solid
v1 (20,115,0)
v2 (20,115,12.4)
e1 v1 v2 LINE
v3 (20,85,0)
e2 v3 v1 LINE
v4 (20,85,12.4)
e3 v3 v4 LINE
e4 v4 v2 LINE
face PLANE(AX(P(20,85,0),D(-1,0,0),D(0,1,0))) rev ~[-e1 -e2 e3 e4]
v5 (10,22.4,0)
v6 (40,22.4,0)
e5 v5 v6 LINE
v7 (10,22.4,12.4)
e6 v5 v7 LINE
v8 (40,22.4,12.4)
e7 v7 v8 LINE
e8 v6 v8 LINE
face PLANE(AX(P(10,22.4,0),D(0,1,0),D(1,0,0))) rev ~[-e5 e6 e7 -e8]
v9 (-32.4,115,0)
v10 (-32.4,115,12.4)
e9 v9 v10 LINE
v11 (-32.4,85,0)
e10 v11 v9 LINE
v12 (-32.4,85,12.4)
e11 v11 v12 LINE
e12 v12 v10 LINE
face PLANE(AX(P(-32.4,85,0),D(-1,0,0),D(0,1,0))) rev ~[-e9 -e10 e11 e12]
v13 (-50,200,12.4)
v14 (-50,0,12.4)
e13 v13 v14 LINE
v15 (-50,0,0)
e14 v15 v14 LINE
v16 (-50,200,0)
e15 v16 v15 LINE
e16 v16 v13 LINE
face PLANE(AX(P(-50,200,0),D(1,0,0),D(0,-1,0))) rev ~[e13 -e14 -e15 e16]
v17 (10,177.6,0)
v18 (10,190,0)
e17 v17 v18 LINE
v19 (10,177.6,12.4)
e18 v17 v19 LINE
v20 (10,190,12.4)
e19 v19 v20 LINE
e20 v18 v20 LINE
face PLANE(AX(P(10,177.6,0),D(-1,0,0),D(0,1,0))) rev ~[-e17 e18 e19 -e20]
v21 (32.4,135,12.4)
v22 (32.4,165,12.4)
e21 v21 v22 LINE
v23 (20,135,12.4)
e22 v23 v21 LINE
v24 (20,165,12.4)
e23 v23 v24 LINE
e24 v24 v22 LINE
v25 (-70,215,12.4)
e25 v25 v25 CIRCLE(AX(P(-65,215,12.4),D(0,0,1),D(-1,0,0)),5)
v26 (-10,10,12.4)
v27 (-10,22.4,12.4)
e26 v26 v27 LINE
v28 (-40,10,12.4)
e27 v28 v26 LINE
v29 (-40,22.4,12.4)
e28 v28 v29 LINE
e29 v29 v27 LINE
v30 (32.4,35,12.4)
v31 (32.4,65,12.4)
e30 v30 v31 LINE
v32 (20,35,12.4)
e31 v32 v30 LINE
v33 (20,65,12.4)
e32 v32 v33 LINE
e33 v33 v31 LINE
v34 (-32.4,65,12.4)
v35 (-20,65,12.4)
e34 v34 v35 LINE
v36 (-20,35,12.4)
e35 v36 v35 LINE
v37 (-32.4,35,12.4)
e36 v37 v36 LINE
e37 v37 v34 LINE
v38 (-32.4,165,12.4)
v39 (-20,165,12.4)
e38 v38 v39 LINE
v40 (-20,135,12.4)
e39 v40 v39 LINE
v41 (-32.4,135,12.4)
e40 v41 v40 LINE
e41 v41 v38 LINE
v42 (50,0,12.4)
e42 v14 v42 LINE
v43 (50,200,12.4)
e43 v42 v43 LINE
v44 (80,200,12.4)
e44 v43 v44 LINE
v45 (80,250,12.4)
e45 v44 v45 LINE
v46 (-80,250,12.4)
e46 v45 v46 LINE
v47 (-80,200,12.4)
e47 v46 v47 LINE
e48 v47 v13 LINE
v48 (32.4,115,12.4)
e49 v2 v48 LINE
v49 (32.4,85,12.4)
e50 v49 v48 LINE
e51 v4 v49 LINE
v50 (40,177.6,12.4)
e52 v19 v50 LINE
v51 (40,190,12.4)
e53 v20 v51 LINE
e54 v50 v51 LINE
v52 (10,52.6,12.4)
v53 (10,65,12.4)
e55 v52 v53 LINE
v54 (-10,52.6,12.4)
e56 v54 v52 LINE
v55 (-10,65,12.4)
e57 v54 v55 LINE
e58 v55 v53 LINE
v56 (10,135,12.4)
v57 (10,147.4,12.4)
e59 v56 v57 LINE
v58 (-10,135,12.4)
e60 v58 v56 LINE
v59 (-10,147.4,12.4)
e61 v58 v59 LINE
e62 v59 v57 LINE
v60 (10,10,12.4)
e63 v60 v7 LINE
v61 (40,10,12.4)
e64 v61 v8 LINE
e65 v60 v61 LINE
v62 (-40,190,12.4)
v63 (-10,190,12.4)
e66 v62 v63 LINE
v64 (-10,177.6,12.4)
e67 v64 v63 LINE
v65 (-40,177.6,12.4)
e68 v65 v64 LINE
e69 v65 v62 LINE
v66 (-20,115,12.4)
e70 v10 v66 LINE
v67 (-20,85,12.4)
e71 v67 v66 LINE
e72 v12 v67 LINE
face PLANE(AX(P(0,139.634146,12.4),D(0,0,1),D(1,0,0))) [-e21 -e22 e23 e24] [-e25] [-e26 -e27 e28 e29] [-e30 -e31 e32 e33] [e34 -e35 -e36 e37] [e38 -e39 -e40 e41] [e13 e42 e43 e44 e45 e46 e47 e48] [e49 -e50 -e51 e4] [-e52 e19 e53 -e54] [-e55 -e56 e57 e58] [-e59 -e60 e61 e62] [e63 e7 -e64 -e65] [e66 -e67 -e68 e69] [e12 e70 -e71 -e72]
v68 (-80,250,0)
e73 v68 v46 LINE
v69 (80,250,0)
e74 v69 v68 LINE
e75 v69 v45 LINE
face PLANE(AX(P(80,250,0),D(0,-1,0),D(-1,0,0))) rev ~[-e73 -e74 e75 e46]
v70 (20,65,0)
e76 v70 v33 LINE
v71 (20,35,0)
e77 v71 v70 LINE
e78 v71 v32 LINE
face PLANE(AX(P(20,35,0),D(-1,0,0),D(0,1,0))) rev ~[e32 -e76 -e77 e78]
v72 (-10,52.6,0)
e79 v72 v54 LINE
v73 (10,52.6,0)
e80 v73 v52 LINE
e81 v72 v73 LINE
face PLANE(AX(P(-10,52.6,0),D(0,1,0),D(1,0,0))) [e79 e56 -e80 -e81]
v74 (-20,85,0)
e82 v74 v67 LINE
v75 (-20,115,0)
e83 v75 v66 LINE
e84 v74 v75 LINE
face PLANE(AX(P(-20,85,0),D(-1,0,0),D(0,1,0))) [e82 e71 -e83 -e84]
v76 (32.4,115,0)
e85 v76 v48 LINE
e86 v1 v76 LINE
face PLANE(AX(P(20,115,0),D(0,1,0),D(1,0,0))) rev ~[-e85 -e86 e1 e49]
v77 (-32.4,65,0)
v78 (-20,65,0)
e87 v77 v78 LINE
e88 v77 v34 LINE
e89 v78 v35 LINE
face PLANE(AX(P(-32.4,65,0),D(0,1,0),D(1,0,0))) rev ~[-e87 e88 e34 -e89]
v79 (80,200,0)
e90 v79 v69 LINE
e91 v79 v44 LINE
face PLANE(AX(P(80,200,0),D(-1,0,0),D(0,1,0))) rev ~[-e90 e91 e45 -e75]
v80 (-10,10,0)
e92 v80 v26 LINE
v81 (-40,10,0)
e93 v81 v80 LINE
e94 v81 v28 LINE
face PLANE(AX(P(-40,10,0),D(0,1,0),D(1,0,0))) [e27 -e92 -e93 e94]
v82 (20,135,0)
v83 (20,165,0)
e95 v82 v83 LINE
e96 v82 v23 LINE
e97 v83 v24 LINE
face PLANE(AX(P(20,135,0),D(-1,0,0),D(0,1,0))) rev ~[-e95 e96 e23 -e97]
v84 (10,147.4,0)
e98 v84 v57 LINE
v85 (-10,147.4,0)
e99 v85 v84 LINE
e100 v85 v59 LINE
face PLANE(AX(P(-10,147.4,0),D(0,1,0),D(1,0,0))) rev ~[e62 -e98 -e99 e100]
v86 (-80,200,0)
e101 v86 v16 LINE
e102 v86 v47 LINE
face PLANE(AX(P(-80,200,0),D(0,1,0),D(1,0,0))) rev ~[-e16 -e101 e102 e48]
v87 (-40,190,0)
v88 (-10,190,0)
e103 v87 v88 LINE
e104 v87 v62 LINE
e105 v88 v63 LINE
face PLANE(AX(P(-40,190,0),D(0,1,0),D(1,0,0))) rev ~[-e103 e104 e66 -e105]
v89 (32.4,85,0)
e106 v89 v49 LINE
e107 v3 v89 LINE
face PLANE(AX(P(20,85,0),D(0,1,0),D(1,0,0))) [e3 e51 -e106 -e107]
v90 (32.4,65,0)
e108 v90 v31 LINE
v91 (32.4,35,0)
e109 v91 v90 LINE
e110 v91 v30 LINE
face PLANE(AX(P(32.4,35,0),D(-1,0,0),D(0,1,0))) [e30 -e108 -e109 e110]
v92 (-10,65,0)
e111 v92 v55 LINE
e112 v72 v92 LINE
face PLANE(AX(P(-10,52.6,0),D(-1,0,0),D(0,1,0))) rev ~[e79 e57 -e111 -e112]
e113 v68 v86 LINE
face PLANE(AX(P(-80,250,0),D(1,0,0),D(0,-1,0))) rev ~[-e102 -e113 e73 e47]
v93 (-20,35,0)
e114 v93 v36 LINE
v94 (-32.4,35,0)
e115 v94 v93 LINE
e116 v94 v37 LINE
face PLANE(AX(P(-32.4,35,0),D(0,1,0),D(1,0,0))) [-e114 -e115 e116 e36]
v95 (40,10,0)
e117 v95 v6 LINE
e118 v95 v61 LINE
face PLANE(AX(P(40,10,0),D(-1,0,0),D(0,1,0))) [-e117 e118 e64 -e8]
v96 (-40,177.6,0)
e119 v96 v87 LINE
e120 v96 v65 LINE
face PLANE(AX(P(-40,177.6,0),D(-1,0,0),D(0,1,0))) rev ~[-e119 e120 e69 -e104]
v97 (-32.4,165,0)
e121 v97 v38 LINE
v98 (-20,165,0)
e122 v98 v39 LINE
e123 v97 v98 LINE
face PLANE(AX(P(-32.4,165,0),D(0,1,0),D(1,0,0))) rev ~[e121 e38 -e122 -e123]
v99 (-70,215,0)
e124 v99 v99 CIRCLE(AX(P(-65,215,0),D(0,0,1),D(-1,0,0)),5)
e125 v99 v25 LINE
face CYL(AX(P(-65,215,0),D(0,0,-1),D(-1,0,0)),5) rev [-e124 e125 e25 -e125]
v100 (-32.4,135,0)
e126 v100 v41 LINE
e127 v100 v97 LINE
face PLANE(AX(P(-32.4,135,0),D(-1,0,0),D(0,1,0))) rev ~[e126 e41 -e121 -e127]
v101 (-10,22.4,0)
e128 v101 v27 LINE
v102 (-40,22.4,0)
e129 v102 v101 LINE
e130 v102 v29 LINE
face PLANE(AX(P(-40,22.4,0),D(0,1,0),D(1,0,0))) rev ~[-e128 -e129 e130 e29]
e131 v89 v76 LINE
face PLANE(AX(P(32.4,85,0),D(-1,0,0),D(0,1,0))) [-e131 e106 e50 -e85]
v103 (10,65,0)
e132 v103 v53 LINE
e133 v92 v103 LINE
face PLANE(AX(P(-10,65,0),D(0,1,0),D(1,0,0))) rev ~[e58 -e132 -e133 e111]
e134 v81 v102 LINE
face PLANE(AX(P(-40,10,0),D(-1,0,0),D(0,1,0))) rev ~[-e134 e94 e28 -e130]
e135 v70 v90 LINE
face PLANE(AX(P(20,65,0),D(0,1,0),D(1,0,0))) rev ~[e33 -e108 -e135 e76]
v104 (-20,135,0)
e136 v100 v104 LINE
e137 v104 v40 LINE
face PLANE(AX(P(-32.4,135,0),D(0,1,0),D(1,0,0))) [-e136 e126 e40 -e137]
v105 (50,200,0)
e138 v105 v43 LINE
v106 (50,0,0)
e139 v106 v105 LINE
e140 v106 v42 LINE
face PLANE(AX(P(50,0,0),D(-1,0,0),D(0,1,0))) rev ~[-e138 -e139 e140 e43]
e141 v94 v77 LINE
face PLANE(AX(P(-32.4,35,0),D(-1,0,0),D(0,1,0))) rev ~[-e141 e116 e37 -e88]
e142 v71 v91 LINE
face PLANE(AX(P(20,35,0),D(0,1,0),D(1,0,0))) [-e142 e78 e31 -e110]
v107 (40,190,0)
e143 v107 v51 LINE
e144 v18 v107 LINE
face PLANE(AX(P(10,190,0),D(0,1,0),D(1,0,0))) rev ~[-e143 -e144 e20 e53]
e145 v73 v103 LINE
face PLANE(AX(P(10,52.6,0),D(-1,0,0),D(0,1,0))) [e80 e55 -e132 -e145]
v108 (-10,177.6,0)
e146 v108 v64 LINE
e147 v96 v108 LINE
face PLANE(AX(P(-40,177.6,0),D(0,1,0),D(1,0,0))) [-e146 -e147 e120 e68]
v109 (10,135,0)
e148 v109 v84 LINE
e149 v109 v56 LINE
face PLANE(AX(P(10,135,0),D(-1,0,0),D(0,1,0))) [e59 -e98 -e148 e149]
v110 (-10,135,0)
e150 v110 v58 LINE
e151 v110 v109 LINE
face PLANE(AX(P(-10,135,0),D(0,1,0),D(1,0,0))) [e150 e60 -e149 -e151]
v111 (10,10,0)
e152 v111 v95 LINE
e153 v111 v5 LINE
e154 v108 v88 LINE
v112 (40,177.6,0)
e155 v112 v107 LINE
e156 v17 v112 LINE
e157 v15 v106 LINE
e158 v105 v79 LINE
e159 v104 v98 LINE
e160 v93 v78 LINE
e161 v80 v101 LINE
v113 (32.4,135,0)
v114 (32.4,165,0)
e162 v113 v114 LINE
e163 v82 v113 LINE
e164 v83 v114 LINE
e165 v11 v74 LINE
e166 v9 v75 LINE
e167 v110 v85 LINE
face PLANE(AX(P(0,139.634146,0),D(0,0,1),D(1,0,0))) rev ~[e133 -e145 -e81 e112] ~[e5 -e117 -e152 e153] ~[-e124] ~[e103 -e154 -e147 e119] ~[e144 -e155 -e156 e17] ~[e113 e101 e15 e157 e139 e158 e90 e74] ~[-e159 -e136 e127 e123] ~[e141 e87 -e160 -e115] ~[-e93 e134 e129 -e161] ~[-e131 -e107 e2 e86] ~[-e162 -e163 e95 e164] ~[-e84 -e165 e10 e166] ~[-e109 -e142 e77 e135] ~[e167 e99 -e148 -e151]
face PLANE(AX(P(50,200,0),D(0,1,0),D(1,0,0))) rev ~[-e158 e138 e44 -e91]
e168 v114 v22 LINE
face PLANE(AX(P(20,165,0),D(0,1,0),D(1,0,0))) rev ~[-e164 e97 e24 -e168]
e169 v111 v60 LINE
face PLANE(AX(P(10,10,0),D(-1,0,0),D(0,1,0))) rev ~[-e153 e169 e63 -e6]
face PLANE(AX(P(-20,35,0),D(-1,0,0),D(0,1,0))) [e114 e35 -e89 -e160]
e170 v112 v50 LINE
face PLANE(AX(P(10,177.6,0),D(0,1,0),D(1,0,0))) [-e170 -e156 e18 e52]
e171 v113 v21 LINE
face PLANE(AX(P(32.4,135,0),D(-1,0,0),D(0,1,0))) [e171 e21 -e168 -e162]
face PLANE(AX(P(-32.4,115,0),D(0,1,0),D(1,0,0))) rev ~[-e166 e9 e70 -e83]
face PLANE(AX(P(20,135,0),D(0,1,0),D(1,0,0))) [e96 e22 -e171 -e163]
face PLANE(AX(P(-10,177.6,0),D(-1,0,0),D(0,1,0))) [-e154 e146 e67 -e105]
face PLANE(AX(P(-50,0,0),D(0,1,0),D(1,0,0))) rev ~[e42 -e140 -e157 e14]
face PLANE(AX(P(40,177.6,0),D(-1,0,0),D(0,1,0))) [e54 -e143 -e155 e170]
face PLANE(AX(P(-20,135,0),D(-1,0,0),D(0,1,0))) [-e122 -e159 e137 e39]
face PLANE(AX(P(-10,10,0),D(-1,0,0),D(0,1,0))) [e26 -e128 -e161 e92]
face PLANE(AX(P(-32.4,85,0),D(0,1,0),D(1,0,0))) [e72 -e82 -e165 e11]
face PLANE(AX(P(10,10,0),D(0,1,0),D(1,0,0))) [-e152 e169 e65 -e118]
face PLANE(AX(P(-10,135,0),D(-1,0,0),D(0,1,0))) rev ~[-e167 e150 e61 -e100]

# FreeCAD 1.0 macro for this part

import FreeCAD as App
import Part
import Sketcher

V = App.Vector


def add_polygon(sketch, points):
    """Adds a closed chain of lines whose ends are joined by coincident constraints."""
    first, n = sketch.GeometryCount, len(points)
    for a, b in zip(points, points[1:] + points[:1]):
        sketch.addGeometry(Part.LineSegment(App.Vector(*a, 0), App.Vector(*b, 0)), False)
    for i in range(n):
        sketch.addConstraint(Sketcher.Constraint("Coincident", first + i, 2, first + (i + 1) % n, 1))

doc = App.newDocument("Part")
body = doc.addObject("PartDesign::Body", "Body")

# Sketch on XY plane
sketch1 = body.newObject("Sketcher::SketchObject", "Sketch")
sketch1.AttachmentSupport = (doc.getObject("XY_Plane"), [""])
sketch1.MapMode = "FlatFace"
add_polygon(sketch1, [(50, 200), (80, 200), (80, 250), (-80, 250), (-80, 200), (-50, 200), (-50, 0), (50, 0)])  # lines 0-7
add_polygon(sketch1, [(-10, 10), (-40, 10), (-40, 22), (-10, 22)])  # lines 8-11
add_polygon(sketch1, [(-20, 35), (-32, 35), (-32, 65), (-20, 65)])  # lines 12-15
add_polygon(sketch1, [(-20, 85), (-32, 85), (-32, 115), (-20, 115)])  # lines 16-19
add_polygon(sketch1, [(10, 53), (-10, 53), (-10, 65), (10, 65)])  # lines 20-23
add_polygon(sketch1, [(40, 10), (10, 10), (10, 22), (40, 22)])  # lines 24-27
add_polygon(sketch1, [(32, 35), (20, 35), (20, 65), (32, 65)])  # lines 28-31
add_polygon(sketch1, [(32, 85), (20, 85), (20, 115), (32, 115)])  # lines 32-35
add_polygon(sketch1, [(-20, 135), (-32, 135), (-32, 165), (-20, 165)])  # lines 36-39
sketch1.addGeometry(Part.Circle(V(-65, 215, 0), V(0, 0, 1), 5), False)  # 40
add_polygon(sketch1, [(-10, 178), (-40, 178), (-40, 190), (-10, 190)])  # lines 41-44
add_polygon(sketch1, [(10, 135), (-10, 135), (-10, 147), (10, 147)])  # lines 45-48
add_polygon(sketch1, [(32, 135), (20, 135), (20, 165), (32, 165)])  # lines 49-52
add_polygon(sketch1, [(40, 178), (10, 178), (10, 190), (40, 190)])  # lines 53-56
sketch1.addConstraint([
    Sketcher.Constraint("Horizontal", 0),
    Sketcher.Constraint("Vertical", 1),
    Sketcher.Constraint("Horizontal", 2),
    Sketcher.Constraint("Vertical", 3),
    Sketcher.Constraint("Horizontal", 4),
    Sketcher.Constraint("Vertical", 5),
    Sketcher.Constraint("Horizontal", 6),
    Sketcher.Constraint("Vertical", 7),
    Sketcher.Constraint("Horizontal", 8),
    Sketcher.Constraint("Vertical", 9),
    Sketcher.Constraint("Horizontal", 10),
    Sketcher.Constraint("Vertical", 11),
    Sketcher.Constraint("Horizontal", 12),
    Sketcher.Constraint("Vertical", 13),
    Sketcher.Constraint("Horizontal", 14),
    Sketcher.Constraint("Vertical", 15),
    Sketcher.Constraint("Horizontal", 16),
    Sketcher.Constraint("Vertical", 17),
    Sketcher.Constraint("Horizontal", 18),
    Sketcher.Constraint("Vertical", 19),
    Sketcher.Constraint("Horizontal", 20),
    Sketcher.Constraint("Vertical", 21),
    Sketcher.Constraint("Horizontal", 22),
    Sketcher.Constraint("Vertical", 23),
    Sketcher.Constraint("Horizontal", 24),
    Sketcher.Constraint("Vertical", 25),
    Sketcher.Constraint("Horizontal", 26),
    Sketcher.Constraint("Vertical", 27),
    Sketcher.Constraint("Horizontal", 28),
    Sketcher.Constraint("Vertical", 29),
    Sketcher.Constraint("Horizontal", 30),
    Sketcher.Constraint("Vertical", 31),
    Sketcher.Constraint("Horizontal", 32),
    Sketcher.Constraint("Vertical", 33),
    Sketcher.Constraint("Horizontal", 34),
    Sketcher.Constraint("Vertical", 35),
    Sketcher.Constraint("Horizontal", 36),
    Sketcher.Constraint("Vertical", 37),
    Sketcher.Constraint("Horizontal", 38),
    Sketcher.Constraint("Vertical", 39),
    Sketcher.Constraint("Horizontal", 41),
    Sketcher.Constraint("Vertical", 42),
    Sketcher.Constraint("Horizontal", 43),
    Sketcher.Constraint("Vertical", 44),
    Sketcher.Constraint("Horizontal", 45),
    Sketcher.Constraint("Vertical", 46),
    Sketcher.Constraint("Horizontal", 47),
    Sketcher.Constraint("Vertical", 48),
    Sketcher.Constraint("Horizontal", 49),
    Sketcher.Constraint("Vertical", 50),
    Sketcher.Constraint("Horizontal", 51),
    Sketcher.Constraint("Vertical", 52),
    Sketcher.Constraint("Horizontal", 53),
    Sketcher.Constraint("Vertical", 54),
    Sketcher.Constraint("Horizontal", 55),
    Sketcher.Constraint("Vertical", 56),
    Sketcher.Constraint("Symmetric", 5, 2, 6, 2, -1, 1),
    Sketcher.Constraint("Symmetric", 0, 2, 3, 2, -2),
    Sketcher.Constraint("Symmetric", 11, 2, 24, 2, -2),
    Sketcher.Constraint("Symmetric", 9, 2, 26, 2, -2),
    Sketcher.Constraint("Symmetric", 15, 2, 28, 2, -2),
    Sketcher.Constraint("Symmetric", 13, 2, 30, 2, -2),
    Sketcher.Constraint("Symmetric", 19, 2, 32, 2, -2),
    Sketcher.Constraint("Symmetric", 17, 2, 34, 2, -2),
    Sketcher.Constraint("Symmetric", 39, 2, 49, 2, -2),
    Sketcher.Constraint("Symmetric", 37, 2, 51, 2, -2),
    Sketcher.Constraint("Symmetric", 44, 2, 53, 2, -2),
    Sketcher.Constraint("Symmetric", 42, 2, 55, 2, -2),
    Sketcher.Constraint("Horizontal", 14, 2, 21, 2),
    Sketcher.Constraint("Horizontal", 39, 2, 45, 2),
    Sketcher.Constraint("Vertical", 13, 2, 16, 2),
    Sketcher.Constraint("Vertical", 15, 2, 18, 2),
    Sketcher.Constraint("Vertical", 11, 2, 20, 2),
    Sketcher.Constraint("Vertical", 23, 2, 24, 2),
    Sketcher.Constraint("Vertical", 17, 2, 36, 2),
    Sketcher.Constraint("Vertical", 19, 2, 38, 2),
    Sketcher.Constraint("Vertical", 9, 2, 41, 2),
    Sketcher.Constraint("Vertical", 21, 2, 43, 2),
    Sketcher.Constraint("Vertical", 44, 2, 45, 2),
    Sketcher.Constraint("Vertical", 25, 2, 47, 2),
    Sketcher.Constraint("Equal", 4, 8),
    Sketcher.Constraint("Equal", 51, 9),
    Sketcher.Constraint("Equal", 55, 13),
    Sketcher.Constraint("Equal", 15, 17),
    Sketcher.Constraint("Equal", 11, 21),
    Sketcher.Constraint("Equal", 35, 37),
    Sketcher.Constraint("Equal", 27, 42),
    Sketcher.Constraint("Equal", 44, 46),
    Sketcher.Constraint("Diameter", 40, 10.0),
    Sketcher.Constraint("DistanceX", 0, 1, 0, 2, 30.0),
    Sketcher.Constraint("DistanceX", 2, 2, 2, 1, 160.0),
    Sketcher.Constraint("DistanceX", 20, 2, 20, 1, 20.0),
    Sketcher.Constraint("DistanceY", 1, 1, 1, 2, 50.0),
    Sketcher.Constraint("DistanceY", 5, 2, 5, 1, 200.0),
    Sketcher.Constraint("DistanceX", 12, 2, 12, 1, 12.4),
    Sketcher.Constraint("DistanceX", 40, 3, -1, 1, 65.0),
    Sketcher.Constraint("DistanceY", -1, 1, 40, 3, 215.0),
    Sketcher.Constraint("DistanceY", -1, 1, 8, 2, 10.0),
    Sketcher.Constraint("DistanceY", -1, 1, 12, 2, 35.0),
    Sketcher.Constraint("DistanceX", 14, 2, -1, 1, 20.0),
    Sketcher.Constraint("DistanceY", -1, 1, 16, 2, 85.0),
    Sketcher.Constraint("DistanceY", -1, 1, 36, 2, 135.0),
    Sketcher.Constraint("DistanceY", -1, 1, 42, 2, 190.0),
])
pad1 = body.newObject("PartDesign::Pad", "Pad")
pad1.Profile = sketch1
pad1.Length = 12.4

doc.recompute()
